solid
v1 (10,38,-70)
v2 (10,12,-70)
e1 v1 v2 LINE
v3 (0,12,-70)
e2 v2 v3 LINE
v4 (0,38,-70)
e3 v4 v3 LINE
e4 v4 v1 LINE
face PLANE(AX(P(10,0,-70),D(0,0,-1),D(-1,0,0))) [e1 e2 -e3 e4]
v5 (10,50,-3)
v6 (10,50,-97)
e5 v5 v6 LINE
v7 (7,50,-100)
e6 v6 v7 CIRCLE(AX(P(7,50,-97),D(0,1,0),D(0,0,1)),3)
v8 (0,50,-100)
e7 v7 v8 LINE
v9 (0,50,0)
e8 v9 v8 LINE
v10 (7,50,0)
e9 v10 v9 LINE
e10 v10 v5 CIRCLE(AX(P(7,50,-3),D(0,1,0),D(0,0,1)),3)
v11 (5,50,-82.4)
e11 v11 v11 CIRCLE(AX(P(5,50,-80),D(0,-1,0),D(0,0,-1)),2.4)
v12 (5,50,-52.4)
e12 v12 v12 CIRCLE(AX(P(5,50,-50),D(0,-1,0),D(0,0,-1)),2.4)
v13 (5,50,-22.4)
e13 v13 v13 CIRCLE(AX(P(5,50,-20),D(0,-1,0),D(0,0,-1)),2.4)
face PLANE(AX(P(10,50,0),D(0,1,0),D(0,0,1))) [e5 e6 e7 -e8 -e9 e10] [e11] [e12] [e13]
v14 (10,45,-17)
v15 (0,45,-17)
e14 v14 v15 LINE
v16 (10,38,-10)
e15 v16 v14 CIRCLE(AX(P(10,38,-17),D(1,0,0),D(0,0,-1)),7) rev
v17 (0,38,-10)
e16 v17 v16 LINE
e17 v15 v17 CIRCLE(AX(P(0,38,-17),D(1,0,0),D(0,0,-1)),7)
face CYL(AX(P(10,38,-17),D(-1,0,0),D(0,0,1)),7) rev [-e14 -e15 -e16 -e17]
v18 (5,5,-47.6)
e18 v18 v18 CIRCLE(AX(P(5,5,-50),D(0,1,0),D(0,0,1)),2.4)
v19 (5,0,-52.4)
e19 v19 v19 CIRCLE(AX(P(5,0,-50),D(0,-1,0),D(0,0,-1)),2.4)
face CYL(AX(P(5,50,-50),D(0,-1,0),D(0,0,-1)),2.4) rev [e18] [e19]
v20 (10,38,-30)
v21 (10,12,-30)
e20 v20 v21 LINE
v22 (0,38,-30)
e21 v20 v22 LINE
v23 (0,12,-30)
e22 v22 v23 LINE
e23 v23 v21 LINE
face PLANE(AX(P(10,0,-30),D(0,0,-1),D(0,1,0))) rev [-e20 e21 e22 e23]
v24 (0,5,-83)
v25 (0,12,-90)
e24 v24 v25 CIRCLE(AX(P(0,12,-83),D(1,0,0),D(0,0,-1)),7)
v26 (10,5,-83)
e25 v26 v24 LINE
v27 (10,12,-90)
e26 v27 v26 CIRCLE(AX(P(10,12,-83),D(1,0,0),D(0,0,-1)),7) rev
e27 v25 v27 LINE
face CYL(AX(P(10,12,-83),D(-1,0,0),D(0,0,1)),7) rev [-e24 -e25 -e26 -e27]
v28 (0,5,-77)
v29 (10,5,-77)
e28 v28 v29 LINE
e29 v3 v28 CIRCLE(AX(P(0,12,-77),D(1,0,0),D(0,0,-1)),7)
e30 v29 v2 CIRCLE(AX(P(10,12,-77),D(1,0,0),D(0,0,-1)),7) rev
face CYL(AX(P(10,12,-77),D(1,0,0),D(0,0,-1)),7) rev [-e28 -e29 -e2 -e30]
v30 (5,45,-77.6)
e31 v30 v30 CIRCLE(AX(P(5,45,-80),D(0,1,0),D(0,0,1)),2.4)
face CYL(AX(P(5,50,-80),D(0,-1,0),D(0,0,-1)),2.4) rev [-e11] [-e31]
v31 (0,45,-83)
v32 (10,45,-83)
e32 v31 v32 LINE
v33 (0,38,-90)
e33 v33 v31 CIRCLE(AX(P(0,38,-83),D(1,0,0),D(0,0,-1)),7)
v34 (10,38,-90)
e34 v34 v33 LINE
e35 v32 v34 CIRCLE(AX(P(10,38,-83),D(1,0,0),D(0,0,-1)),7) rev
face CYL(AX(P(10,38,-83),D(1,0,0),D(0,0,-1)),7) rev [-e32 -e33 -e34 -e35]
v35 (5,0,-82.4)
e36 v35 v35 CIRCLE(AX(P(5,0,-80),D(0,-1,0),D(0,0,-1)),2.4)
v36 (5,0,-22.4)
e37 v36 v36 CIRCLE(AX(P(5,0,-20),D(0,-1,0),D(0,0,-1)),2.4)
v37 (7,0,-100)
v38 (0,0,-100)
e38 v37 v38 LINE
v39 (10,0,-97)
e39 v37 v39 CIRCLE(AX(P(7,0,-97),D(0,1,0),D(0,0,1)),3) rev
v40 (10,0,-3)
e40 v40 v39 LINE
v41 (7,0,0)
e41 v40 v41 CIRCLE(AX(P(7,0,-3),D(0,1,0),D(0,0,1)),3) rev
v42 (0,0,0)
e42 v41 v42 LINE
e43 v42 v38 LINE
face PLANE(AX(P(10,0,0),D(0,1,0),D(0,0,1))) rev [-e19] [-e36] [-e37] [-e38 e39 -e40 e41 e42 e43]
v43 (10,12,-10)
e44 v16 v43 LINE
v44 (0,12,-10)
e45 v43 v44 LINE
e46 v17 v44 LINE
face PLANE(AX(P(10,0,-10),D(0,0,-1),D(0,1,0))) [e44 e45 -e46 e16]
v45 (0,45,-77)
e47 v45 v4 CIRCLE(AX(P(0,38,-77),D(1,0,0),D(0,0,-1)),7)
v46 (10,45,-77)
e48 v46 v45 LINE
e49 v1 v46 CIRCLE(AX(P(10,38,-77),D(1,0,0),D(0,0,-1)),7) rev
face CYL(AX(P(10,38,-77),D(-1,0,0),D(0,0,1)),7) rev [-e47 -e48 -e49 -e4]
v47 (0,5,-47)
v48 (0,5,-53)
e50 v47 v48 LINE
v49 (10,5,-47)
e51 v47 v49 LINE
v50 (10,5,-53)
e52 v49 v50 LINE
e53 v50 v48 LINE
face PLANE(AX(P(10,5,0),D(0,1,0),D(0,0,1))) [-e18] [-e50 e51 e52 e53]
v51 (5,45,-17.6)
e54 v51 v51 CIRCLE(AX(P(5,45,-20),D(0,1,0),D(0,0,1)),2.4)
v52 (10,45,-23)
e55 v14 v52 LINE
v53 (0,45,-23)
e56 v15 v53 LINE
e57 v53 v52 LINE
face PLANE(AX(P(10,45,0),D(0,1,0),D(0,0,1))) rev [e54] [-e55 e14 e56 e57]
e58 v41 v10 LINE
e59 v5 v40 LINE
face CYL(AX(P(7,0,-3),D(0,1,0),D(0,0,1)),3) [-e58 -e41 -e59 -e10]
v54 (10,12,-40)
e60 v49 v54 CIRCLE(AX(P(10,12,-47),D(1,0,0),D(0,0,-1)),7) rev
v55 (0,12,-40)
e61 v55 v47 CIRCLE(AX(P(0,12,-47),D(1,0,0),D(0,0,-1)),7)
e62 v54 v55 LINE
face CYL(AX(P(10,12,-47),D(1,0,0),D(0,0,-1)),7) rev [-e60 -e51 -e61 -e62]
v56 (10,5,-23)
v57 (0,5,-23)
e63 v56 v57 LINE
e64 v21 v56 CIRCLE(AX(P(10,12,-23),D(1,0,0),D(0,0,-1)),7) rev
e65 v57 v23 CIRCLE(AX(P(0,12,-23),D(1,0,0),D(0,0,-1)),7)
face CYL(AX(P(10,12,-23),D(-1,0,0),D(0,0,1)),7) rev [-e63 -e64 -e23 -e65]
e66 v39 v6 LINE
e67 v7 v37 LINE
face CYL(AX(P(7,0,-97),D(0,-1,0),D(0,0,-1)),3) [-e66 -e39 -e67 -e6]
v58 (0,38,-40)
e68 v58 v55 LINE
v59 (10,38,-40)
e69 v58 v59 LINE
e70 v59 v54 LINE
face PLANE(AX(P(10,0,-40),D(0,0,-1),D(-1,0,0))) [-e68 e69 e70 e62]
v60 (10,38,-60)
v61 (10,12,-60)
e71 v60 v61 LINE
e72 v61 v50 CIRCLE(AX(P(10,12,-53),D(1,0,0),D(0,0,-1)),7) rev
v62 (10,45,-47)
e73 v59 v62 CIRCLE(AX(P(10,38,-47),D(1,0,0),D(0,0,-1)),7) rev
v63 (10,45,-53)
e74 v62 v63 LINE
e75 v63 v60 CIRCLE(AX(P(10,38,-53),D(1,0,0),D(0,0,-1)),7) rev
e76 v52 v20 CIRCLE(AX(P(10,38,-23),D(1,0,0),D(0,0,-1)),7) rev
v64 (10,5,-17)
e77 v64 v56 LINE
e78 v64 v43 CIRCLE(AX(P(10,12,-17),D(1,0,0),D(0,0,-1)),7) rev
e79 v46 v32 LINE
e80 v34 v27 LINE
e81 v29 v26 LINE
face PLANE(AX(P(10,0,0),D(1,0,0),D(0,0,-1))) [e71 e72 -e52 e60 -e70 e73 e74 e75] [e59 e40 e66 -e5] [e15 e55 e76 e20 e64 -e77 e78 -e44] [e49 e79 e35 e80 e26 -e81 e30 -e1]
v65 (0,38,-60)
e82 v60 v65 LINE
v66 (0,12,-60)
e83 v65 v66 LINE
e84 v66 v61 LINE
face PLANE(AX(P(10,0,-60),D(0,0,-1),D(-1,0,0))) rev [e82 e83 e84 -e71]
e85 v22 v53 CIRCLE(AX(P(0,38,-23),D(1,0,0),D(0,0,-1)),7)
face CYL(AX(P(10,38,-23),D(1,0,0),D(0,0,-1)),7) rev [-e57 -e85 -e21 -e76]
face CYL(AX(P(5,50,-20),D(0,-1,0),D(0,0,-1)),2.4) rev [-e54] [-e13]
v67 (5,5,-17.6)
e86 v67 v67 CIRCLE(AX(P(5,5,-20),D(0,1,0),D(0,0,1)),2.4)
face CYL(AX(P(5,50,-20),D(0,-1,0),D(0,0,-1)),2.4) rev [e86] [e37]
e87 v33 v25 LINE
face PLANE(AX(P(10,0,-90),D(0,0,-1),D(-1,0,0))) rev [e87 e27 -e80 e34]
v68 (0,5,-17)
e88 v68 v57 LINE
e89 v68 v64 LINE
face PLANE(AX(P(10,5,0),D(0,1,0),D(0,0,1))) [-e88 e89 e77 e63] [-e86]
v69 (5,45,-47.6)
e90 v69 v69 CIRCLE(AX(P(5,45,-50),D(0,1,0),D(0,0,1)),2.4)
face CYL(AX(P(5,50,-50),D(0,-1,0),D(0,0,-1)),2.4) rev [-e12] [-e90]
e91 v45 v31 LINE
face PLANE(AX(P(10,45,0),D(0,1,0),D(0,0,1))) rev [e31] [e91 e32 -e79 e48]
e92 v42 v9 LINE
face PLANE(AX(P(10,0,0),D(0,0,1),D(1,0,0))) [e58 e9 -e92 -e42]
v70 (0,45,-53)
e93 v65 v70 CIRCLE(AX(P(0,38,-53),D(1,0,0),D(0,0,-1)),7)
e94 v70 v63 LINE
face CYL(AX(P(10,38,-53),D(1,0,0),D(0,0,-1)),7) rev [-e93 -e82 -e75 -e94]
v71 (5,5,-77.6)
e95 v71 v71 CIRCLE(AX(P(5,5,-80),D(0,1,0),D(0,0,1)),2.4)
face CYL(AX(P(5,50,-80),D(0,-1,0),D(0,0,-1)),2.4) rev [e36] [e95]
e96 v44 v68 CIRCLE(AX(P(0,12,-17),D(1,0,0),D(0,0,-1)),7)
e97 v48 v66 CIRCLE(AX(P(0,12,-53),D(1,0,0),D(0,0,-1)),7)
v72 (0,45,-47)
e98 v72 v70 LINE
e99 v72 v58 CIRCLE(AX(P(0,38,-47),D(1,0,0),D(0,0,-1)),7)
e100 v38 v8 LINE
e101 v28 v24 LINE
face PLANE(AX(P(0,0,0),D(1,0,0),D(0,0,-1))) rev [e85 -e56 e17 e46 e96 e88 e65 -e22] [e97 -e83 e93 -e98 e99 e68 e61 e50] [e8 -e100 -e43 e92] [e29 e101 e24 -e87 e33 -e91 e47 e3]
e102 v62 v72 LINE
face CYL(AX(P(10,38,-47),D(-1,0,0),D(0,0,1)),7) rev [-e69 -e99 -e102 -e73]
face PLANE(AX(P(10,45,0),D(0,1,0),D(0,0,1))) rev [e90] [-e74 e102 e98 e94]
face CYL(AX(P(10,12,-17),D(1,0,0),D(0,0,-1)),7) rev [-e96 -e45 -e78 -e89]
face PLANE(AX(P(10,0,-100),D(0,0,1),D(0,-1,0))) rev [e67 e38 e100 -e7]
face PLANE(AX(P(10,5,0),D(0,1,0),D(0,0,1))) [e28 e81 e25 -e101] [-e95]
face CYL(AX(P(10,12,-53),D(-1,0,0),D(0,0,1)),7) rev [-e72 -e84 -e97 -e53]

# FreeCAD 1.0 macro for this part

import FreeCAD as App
import Part
import Sketcher
Q = App.Units.Quantity


def edges_at(feature, points):
    """Names of the edges that pass closest to the given points."""
    edges = feature.Shape.Edges
    near = lambda p: min(range(len(edges)), key=lambda i: edges[i].distToShape(Part.Vertex(*p))[0])
    return sorted({f"Edge{near(p) + 1}" for p in points})


def add_polygon(sketch, points):
    """Adds a closed chain of lines whose ends are joined by coincident constraints."""
    first, n = sketch.GeometryCount, len(points)
    for a, b in zip(points, points[1:] + points[:1]):
        sketch.addGeometry(Part.LineSegment(App.Vector(*a, 0), App.Vector(*b, 0)), False)
    for i in range(n):
        sketch.addConstraint(Sketcher.Constraint("Coincident", first + i, 2, first + (i + 1) % n, 1))

doc = App.newDocument("Part")
params = doc.addObject("Spreadsheet::Sheet", "Params")
for row, (alias, value) in enumerate([
    ("sketch1_width", "50 mm"),
    ("sketch1_width2", "40 mm"),
    ("sketch1_height", "100 mm"),
    ("sketch1_height2", "20 mm"),
    ("pad1_length", "10 mm"),
    ("sketch2_diameter", "4.8 mm"),
    ("fillet_radius", "7 mm"),
    ("fillet2_radius", "3 mm"),
], start=1):
    params.set(f"A{row}", alias)
    params.set(f"B{row}", "=" + value)
    params.setAlias(f"B{row}", alias)

body = doc.addObject("PartDesign::Body", "Body")

sketch1 = body.newObject("Sketcher::SketchObject", "Sketch")
sketch1.AttachmentSupport = (doc.getObject("YZ_Plane"), [""])
sketch1.MapMode = "FlatFace"
add_polygon(sketch1, [(50, 0), (0, 0), (0, -100), (50, -100)])
add_polygon(sketch1, [(5, -30), (5, -10), (45, -10), (45, -30)])
add_polygon(sketch1, [(5, -60), (5, -40), (45, -40), (45, -60)])
add_polygon(sketch1, [(5, -90), (5, -70), (45, -70), (45, -90)])
sketch1.addConstraint(Sketcher.Constraint("Horizontal", 0))
sketch1.addConstraint(Sketcher.Constraint("Vertical", 1))
sketch1.addConstraint(Sketcher.Constraint("Horizontal", 2))
sketch1.addConstraint(Sketcher.Constraint("Vertical", 3))
sketch1.addConstraint(Sketcher.Constraint("Vertical", 4))
sketch1.addConstraint(Sketcher.Constraint("Horizontal", 5))
sketch1.addConstraint(Sketcher.Constraint("Vertical", 6))
sketch1.addConstraint(Sketcher.Constraint("Horizontal", 7))
sketch1.addConstraint(Sketcher.Constraint("Vertical", 8))
sketch1.addConstraint(Sketcher.Constraint("Horizontal", 9))
sketch1.addConstraint(Sketcher.Constraint("Vertical", 10))
sketch1.addConstraint(Sketcher.Constraint("Horizontal", 11))
sketch1.addConstraint(Sketcher.Constraint("Vertical", 12))
sketch1.addConstraint(Sketcher.Constraint("Horizontal", 13))
sketch1.addConstraint(Sketcher.Constraint("Vertical", 14))
sketch1.addConstraint(Sketcher.Constraint("Horizontal", 15))
sketch1.addConstraint(Sketcher.Constraint("Coincident", 0, 2, -1, 1))
sketch1.addConstraint(Sketcher.Constraint("Vertical", 7, 2, 8, 2))
sketch1.addConstraint(Sketcher.Constraint("Vertical", 6, 2, 9, 2))
sketch1.addConstraint(Sketcher.Constraint("Vertical", 11, 2, 12, 2))
sketch1.addConstraint(Sketcher.Constraint("Vertical", 10, 2, 13, 2))
sketch1.addConstraint(Sketcher.Constraint("Equal", 6, 8))
sketch1.addConstraint(Sketcher.Constraint("Equal", 10, 12))
sketch1.addConstraint(Sketcher.Constraint("DistanceX", 0, 2, 0, 1, Q("50 mm")))
sketch1.addConstraint(Sketcher.Constraint("DistanceX", 5, 1, 5, 2, Q("40 mm")))
sketch1.addConstraint(Sketcher.Constraint("DistanceY", 1, 2, 1, 1, Q("100 mm")))
sketch1.addConstraint(Sketcher.Constraint("DistanceY", 4, 1, 4, 2, Q("20 mm")))
sketch1.addConstraint(Sketcher.Constraint("DistanceX", -1, 1, 4, 2, Q("5 mm")))
sketch1.addConstraint(Sketcher.Constraint("DistanceY", 4, 2, -1, 1, Q("10 mm")))
sketch1.addConstraint(Sketcher.Constraint("DistanceY", 8, 2, -1, 1, Q("40 mm")))
sketch1.addConstraint(Sketcher.Constraint("DistanceY", 12, 2, -1, 1, Q("70 mm")))
sketch1.setExpression("Constraints[39]", "Params.sketch1_width")
sketch1.setExpression("Constraints[40]", "Params.sketch1_width2")
sketch1.setExpression("Constraints[41]", "Params.sketch1_height")
sketch1.setExpression("Constraints[42]", "Params.sketch1_height2")
pad1 = body.newObject("PartDesign::Pad", "Pad")
pad1.Profile = sketch1
pad1.setExpression("Length", "Params.pad1_length")

sketch2 = body.newObject("Sketcher::SketchObject", "Sketch001")
sketch2.AttachmentSupport = (doc.getObject("XZ_Plane"), [""])
sketch2.MapMode = "FlatFace"
sketch2.addGeometry(Part.Circle(App.Vector(5, -20, 0), App.Vector(0, 0, 1), 2.4), False)
sketch2.addGeometry(Part.Circle(App.Vector(5, -50, 0), App.Vector(0, 0, 1), 2.4), False)
sketch2.addGeometry(Part.Circle(App.Vector(5, -80, 0), App.Vector(0, 0, 1), 2.4), False)
sketch2.addConstraint(Sketcher.Constraint("Equal", 0, 1))
sketch2.addConstraint(Sketcher.Constraint("Equal", 1, 2))
sketch2.addConstraint(Sketcher.Constraint("Vertical", 0, 3, 1, 3))
sketch2.addConstraint(Sketcher.Constraint("Vertical", 1, 3, 2, 3))
sketch2.addConstraint(Sketcher.Constraint("Diameter", 0, Q("4.8 mm")))
sketch2.addConstraint(Sketcher.Constraint("DistanceX", -1, 1, 0, 3, Q("5 mm")))
sketch2.addConstraint(Sketcher.Constraint("DistanceY", 0, 3, -1, 1, Q("20 mm")))
sketch2.addConstraint(Sketcher.Constraint("DistanceY", 1, 3, -1, 1, Q("50 mm")))
sketch2.addConstraint(Sketcher.Constraint("DistanceY", 2, 3, -1, 1, Q("80 mm")))
sketch2.setExpression("Constraints[4]", "Params.sketch2_diameter")
pocket1 = body.newObject("PartDesign::Pocket", "Pocket")
pocket1.Profile = sketch2
pocket1.Type = "ThroughAll"
doc.recompute()

fillet = body.newObject("PartDesign::Fillet", "Fillet")
fillet.Base = (pocket1, edges_at(pocket1, [
    (5, 5, -30),
    (5, 45, -30),
    (5, 45, -10),
    (5, 5, -10),
    (5, 5, -90),
    (5, 45, -90),
    (5, 45, -70),
    (5, 5, -70),
    (5, 5, -60),
    (5, 45, -60),
    (5, 45, -40),
    (5, 5, -40),
]))
fillet.setExpression("Radius", "Params.fillet_radius")
doc.recompute()

fillet2 = body.newObject("PartDesign::Fillet", "Fillet001")
fillet2.Base = (fillet, edges_at(fillet, [(10, 25, 0), (10, 25, -100)]))
fillet2.setExpression("Radius", "Params.fillet2_radius")

doc.recompute()
